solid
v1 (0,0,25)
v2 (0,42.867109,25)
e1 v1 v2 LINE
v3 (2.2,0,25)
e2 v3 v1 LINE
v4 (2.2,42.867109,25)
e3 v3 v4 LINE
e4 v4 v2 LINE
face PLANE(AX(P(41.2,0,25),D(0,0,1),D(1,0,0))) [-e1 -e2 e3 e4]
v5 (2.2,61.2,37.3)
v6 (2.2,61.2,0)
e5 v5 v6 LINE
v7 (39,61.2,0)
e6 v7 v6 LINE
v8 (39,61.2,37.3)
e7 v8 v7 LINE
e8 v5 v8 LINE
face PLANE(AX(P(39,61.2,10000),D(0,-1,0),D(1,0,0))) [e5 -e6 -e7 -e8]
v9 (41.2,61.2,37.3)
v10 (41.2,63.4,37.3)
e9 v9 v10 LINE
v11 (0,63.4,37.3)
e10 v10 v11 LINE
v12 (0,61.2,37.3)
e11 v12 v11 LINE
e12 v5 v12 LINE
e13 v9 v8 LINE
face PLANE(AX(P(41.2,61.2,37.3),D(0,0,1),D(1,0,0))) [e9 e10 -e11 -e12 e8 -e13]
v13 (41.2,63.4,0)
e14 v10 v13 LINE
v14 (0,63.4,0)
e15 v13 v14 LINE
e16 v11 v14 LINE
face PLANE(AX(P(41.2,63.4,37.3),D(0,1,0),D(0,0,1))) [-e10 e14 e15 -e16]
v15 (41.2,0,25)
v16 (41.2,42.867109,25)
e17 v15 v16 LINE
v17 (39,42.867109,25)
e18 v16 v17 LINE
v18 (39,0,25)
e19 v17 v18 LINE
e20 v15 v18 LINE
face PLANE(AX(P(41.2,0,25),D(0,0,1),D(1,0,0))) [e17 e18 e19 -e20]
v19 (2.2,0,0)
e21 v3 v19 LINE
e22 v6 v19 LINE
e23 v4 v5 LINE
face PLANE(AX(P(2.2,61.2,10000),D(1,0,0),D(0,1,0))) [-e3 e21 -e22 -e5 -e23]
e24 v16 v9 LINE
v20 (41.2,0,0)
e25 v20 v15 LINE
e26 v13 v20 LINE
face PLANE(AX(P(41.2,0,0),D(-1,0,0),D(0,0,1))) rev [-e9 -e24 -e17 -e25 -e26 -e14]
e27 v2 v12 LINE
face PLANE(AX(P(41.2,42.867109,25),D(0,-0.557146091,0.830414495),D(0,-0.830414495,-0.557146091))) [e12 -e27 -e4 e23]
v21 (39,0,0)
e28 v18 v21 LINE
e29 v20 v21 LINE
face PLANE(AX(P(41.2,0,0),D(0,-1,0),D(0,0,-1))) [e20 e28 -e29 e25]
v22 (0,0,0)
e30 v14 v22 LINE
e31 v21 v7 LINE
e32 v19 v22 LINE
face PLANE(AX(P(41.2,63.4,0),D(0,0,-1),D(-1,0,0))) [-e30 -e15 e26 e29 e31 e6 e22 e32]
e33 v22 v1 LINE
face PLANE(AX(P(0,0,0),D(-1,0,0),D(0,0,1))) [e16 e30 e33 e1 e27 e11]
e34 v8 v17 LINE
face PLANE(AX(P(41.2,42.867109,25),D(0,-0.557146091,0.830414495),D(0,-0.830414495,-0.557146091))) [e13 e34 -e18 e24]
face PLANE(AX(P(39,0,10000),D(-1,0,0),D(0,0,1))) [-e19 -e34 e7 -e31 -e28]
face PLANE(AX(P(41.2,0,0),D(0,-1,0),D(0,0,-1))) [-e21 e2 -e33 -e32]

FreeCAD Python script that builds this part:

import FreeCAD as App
import Part
import Sketcher
Q = App.Units.Quantity


def add_polygon(sketch, points):
    """Adds a closed chain of lines whose ends are joined by coincident constraints."""
    first, n = sketch.GeometryCount, len(points)
    for a, b in zip(points, points[1:] + points[:1]):
        sketch.addGeometry(Part.LineSegment(App.Vector(*a, 0), App.Vector(*b, 0)), False)
    for i in range(n):
        sketch.addConstraint(Sketcher.Constraint("Coincident", first + i, 2, first + (i + 1) % n, 1))

doc = App.newDocument("Part")
params = doc.addObject("Spreadsheet::Sheet", "Params")
for row, (alias, value) in enumerate([
    ("sketch1_height", "25 mm"),
    ("sketch1_width", "63.4 mm"),
    ("sketch1_width2", "2.2 mm"),
    ("sketch1_height2", "37.3 mm"),
    ("pad1_length", "41.2 mm"),
    ("sketch2_width", "36.8 mm"),
    ("sketch2_height", "61.2 mm"),
    ("pocket1_length", "10000 mm"),
], start=1):
    params.set(f"A{row}", alias)
    params.set(f"B{row}", "=" + value)
    params.setAlias(f"B{row}", alias)

body = doc.addObject("PartDesign::Body", "Body")

sketch1 = body.newObject("Sketcher::SketchObject", "Sketch")
sketch1.AttachmentSupport = (doc.getObject("YZ_Plane"), [""])
sketch1.MapMode = "FlatFace"
add_polygon(sketch1, [(0, 25), (0, 0), (63.4, 0), (63.4, 37.3), (61.2, 37.3), (42.9, 25)])
sketch1.addConstraint(Sketcher.Constraint("Vertical", 0))
sketch1.addConstraint(Sketcher.Constraint("Horizontal", 1))
sketch1.addConstraint(Sketcher.Constraint("Vertical", 2))
sketch1.addConstraint(Sketcher.Constraint("Horizontal", 3))
sketch1.addConstraint(Sketcher.Constraint("Horizontal", 5))
sketch1.addConstraint(Sketcher.Constraint("Coincident", 0, 2, -1, 1))
sketch1.addConstraint(Sketcher.Constraint("DistanceY", 0, 2, 0, 1, Q("25 mm")))
sketch1.addConstraint(Sketcher.Constraint("DistanceX", 1, 1, 1, 2, Q("63.4 mm")))
sketch1.addConstraint(Sketcher.Constraint("DistanceX", 3, 2, 3, 1, Q("2.2 mm")))
sketch1.addConstraint(Sketcher.Constraint("DistanceY", 2, 1, 2, 2, Q("37.3 mm")))
sketch1.addConstraint(Sketcher.Constraint("DistanceX", 5, 2, 5, 1, Q("42.867109 mm")))
sketch1.setExpression("Constraints[12]", "Params.sketch1_height")
sketch1.setExpression("Constraints[13]", "Params.sketch1_width")
sketch1.setExpression("Constraints[14]", "Params.sketch1_width2")
sketch1.setExpression("Constraints[15]", "Params.sketch1_height2")
pad1 = body.newObject("PartDesign::Pad", "Pad")
pad1.Profile = sketch1
pad1.setExpression("Length", "Params.pad1_length")

sketch2 = body.newObject("Sketcher::SketchObject", "Sketch001")
sketch2.AttachmentSupport = (doc.getObject("XY_Plane"), [""])
sketch2.MapMode = "FlatFace"
add_polygon(sketch2, [(2, 61), (2, 0), (39, 0), (39, 61)])
sketch2.addConstraint(Sketcher.Constraint("Vertical", 0))
sketch2.addConstraint(Sketcher.Constraint("Horizontal", 1))
sketch2.addConstraint(Sketcher.Constraint("Vertical", 2))
sketch2.addConstraint(Sketcher.Constraint("Horizontal", 3))
sketch2.addConstraint(Sketcher.Constraint("PointOnObject", 0, 2, -1))
sketch2.addConstraint(Sketcher.Constraint("DistanceX", 1, 1, 1, 2, Q("36.8 mm")))
sketch2.addConstraint(Sketcher.Constraint("DistanceY", 0, 2, 0, 1, Q("61.2 mm")))
sketch2.addConstraint(Sketcher.Constraint("DistanceX", -1, 1, 1, 2, Q("39 mm")))
sketch2.setExpression("Constraints[9]", "Params.sketch2_width")
sketch2.setExpression("Constraints[10]", "Params.sketch2_height")
pocket1 = body.newObject("PartDesign::Pocket", "Pocket")
pocket1.Profile = sketch2
pocket1.setExpression("Length", "Params.pocket1_length")
pocket1.Reversed = True

doc.recompute()
